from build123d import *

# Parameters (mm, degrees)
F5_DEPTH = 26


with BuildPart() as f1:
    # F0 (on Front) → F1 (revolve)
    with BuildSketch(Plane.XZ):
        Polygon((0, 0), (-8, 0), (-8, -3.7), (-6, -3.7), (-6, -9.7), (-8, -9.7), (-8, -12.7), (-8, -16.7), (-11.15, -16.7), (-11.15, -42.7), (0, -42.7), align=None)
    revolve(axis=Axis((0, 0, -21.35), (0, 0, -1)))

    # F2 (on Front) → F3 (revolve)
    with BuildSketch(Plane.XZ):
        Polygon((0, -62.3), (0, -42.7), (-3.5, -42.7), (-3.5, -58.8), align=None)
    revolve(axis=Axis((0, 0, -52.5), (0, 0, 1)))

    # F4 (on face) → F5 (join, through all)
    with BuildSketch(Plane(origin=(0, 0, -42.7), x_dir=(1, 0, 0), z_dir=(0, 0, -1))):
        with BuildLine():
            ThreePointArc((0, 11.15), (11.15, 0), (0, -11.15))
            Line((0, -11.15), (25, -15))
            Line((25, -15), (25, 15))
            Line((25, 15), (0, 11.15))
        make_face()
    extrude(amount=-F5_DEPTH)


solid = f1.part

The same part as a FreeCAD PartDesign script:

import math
import FreeCAD as App
import Part
import Sketcher

V = App.Vector
Q = App.Units.Quantity

doc = App.newDocument("Part")
params = doc.addObject("Spreadsheet::Sheet", "Params")
for row, (alias, value) in enumerate([
    ("sketch1_width", "8 mm"),
    ("sketch1_width2", "2 mm"),
    ("sketch1_height", "6 mm"),
    ("sketch1_height2", "7 mm"),
    ("sketch1_height3", "26 mm"),
    ("revolution_angle", "360 deg"),
    ("sketch2_width", "3.5 mm"),
    ("sketch2_height", "19.6 mm"),
    ("revolution2_angle", "360 deg"),
    ("sketch3_height", "30 mm"),
    ("sketch3_radius", "11.15 mm"),
    ("pad1_length", "26 mm"),
], start=1):
    params.set(f"A{row}", alias)
    params.set(f"B{row}", "=" + value)
    params.setAlias(f"B{row}", alias)

body = doc.addObject("PartDesign::Body", "Body")

sketch1 = body.newObject("Sketcher::SketchObject", "Sketch")
sketch1.AttachmentSupport = (doc.getObject("XZ_Plane"), [""])
sketch1.MapMode = "FlatFace"
sketch1.addGeometry(Part.LineSegment(V(0, 0, 0), V(-8, 0, 0)), False)
sketch1.addGeometry(Part.LineSegment(V(-8, 0, 0), V(-8, -3.7, 0)), False)
sketch1.addGeometry(Part.LineSegment(V(-8, -3.7, 0), V(-6, -3.7, 0)), False)
sketch1.addGeometry(Part.LineSegment(V(-6, -3.7, 0), V(-6, -9.7, 0)), False)
sketch1.addGeometry(Part.LineSegment(V(-6, -9.7, 0), V(-8, -9.7, 0)), False)
sketch1.addGeometry(Part.LineSegment(V(-8, -9.7, 0), V(-8, -16.7, 0)), False)
sketch1.addGeometry(Part.LineSegment(V(-8, -16.7, 0), V(-11.2, -16.7, 0)), False)
sketch1.addGeometry(Part.LineSegment(V(-11.2, -16.7, 0), V(-11.2, -42.7, 0)), False)
sketch1.addGeometry(Part.LineSegment(V(-11.2, -42.7, 0), V(0, -42.7, 0)), False)
sketch1.addGeometry(Part.LineSegment(V(0, -42.7, 0), V(0, 0, 0)), False)
sketch1.addConstraint(Sketcher.Constraint("Coincident", 0, 2, 1, 1))
sketch1.addConstraint(Sketcher.Constraint("Coincident", 1, 2, 2, 1))
sketch1.addConstraint(Sketcher.Constraint("Coincident", 2, 2, 3, 1))
sketch1.addConstraint(Sketcher.Constraint("Coincident", 3, 2, 4, 1))
sketch1.addConstraint(Sketcher.Constraint("Coincident", 4, 2, 5, 1))
sketch1.addConstraint(Sketcher.Constraint("Coincident", 5, 2, 6, 1))
sketch1.addConstraint(Sketcher.Constraint("Coincident", 6, 2, 7, 1))
sketch1.addConstraint(Sketcher.Constraint("Coincident", 7, 2, 8, 1))
sketch1.addConstraint(Sketcher.Constraint("Coincident", 8, 2, 9, 1))
sketch1.addConstraint(Sketcher.Constraint("Coincident", 9, 2, 0, 1))
sketch1.addConstraint(Sketcher.Constraint("Horizontal", 0))
sketch1.addConstraint(Sketcher.Constraint("Vertical", 1))
sketch1.addConstraint(Sketcher.Constraint("Horizontal", 2))
sketch1.addConstraint(Sketcher.Constraint("Vertical", 3))
sketch1.addConstraint(Sketcher.Constraint("Horizontal", 4))
sketch1.addConstraint(Sketcher.Constraint("Vertical", 5))
sketch1.addConstraint(Sketcher.Constraint("Horizontal", 6))
sketch1.addConstraint(Sketcher.Constraint("Vertical", 7))
sketch1.addConstraint(Sketcher.Constraint("Horizontal", 8))
sketch1.addConstraint(Sketcher.Constraint("Vertical", 9))
sketch1.addConstraint(Sketcher.Constraint("Coincident", 9, 2, -1, 1))
sketch1.addConstraint(Sketcher.Constraint("Vertical", 1, 2, 4, 2))
sketch1.addConstraint(Sketcher.Constraint("DistanceX", 0, 2, 0, 1, 8.0))
sketch1.addConstraint(Sketcher.Constraint("DistanceX", 2, 1, 2, 2, 2.0))
sketch1.addConstraint(Sketcher.Constraint("DistanceY", 3, 2, 3, 1, 6.0))
sketch1.addConstraint(Sketcher.Constraint("DistanceY", 5, 2, 5, 1, 7.0))
sketch1.addConstraint(Sketcher.Constraint("DistanceY", 7, 2, 7, 1, 26.0))
sketch1.addConstraint(Sketcher.Constraint("DistanceY", 1, 2, 1, 1, 3.7))
sketch1.addConstraint(Sketcher.Constraint("DistanceX", 6, 2, 6, 1, 3.15))
sketch1.setExpression("Constraints[22]", "Params.sketch1_width")
sketch1.setExpression("Constraints[23]", "Params.sketch1_width2")
sketch1.setExpression("Constraints[24]", "Params.sketch1_height")
sketch1.setExpression("Constraints[25]", "Params.sketch1_height2")
sketch1.setExpression("Constraints[26]", "Params.sketch1_height3")
revolution = body.newObject("PartDesign::Revolution", "Revolution")
revolution.Profile = sketch1
revolution.ReferenceAxis = (sketch1, ["V_Axis"])
revolution.setExpression("Angle", "Params.revolution_angle")

sketch2 = body.newObject("Sketcher::SketchObject", "Sketch001")
sketch2.AttachmentSupport = (doc.getObject("XZ_Plane"), [""])
sketch2.MapMode = "FlatFace"
sketch2.addGeometry(Part.LineSegment(V(0, -62.3, 0), V(0, -42.7, 0)), False)
sketch2.addGeometry(Part.LineSegment(V(0, -42.7, 0), V(-3.5, -42.7, 0)), False)
sketch2.addGeometry(Part.LineSegment(V(-3.5, -42.7, 0), V(-3.5, -58.8, 0)), False)
sketch2.addGeometry(Part.LineSegment(V(-3.5, -58.8, 0), V(0, -62.3, 0)), False)
sketch2.addConstraint(Sketcher.Constraint("Coincident", 0, 2, 1, 1))
sketch2.addConstraint(Sketcher.Constraint("Coincident", 1, 2, 2, 1))
sketch2.addConstraint(Sketcher.Constraint("Coincident", 2, 2, 3, 1))
sketch2.addConstraint(Sketcher.Constraint("Coincident", 3, 2, 0, 1))
sketch2.addConstraint(Sketcher.Constraint("Vertical", 0))
sketch2.addConstraint(Sketcher.Constraint("Horizontal", 1))
sketch2.addConstraint(Sketcher.Constraint("Vertical", 2))
sketch2.addConstraint(Sketcher.Constraint("PointOnObject", 0, 2, -2))
sketch2.addConstraint(Sketcher.Constraint("Angle", 3, Q("-45 deg")))
sketch2.addConstraint(Sketcher.Constraint("DistanceX", 1, 2, 1, 1, 3.5))
sketch2.addConstraint(Sketcher.Constraint("DistanceY", 0, 1, 0, 2, 19.6))
sketch2.addConstraint(Sketcher.Constraint("DistanceY", 0, 2, -1, 1, 42.7))
sketch2.setExpression("Constraints[9]", "Params.sketch2_width")
sketch2.setExpression("Constraints[10]", "Params.sketch2_height")
revolution2 = body.newObject("PartDesign::Revolution", "Revolution001")
revolution2.Profile = sketch2
revolution2.ReferenceAxis = (sketch2, ["V_Axis"])
revolution2.setExpression("Angle", "Params.revolution2_angle")

sketch3 = body.newObject("Sketcher::SketchObject", "Sketch002")
sketch3.AttachmentSupport = (doc.getObject("XY_Plane"), [""])
sketch3.MapMode = "FlatFace"
sketch3.AttachmentOffset = App.Placement(V(0, 0, -42.7), App.Rotation())
sketch3.addGeometry(Part.ArcOfCircle(Part.Circle(V(0, 0, 0), V(0, 0, 1), 11), math.radians(-90), math.radians(90)), False)
sketch3.addGeometry(Part.LineSegment(V(0, 11, 0), V(25, 15, 0)), False)
sketch3.addGeometry(Part.LineSegment(V(25, 15, 0), V(25, -15, 0)), False)
sketch3.addGeometry(Part.LineSegment(V(25, -15, 0), V(0, -11, 0)), False)
sketch3.addConstraint(Sketcher.Constraint("Coincident", 0, 2, 1, 1))
sketch3.addConstraint(Sketcher.Constraint("Coincident", 1, 2, 2, 1))
sketch3.addConstraint(Sketcher.Constraint("Coincident", 2, 2, 3, 1))
sketch3.addConstraint(Sketcher.Constraint("Coincident", 3, 2, 0, 1))
sketch3.addConstraint(Sketcher.Constraint("Vertical", 2))
sketch3.addConstraint(Sketcher.Constraint("Coincident", 0, 3, -1, 1))
sketch3.addConstraint(Sketcher.Constraint("PointOnObject", 0, 2, -2))
sketch3.addConstraint(Sketcher.Constraint("PointOnObject", 3, 2, -2))
sketch3.addConstraint(Sketcher.Constraint("Equal", 1, 3))
sketch3.addConstraint(Sketcher.Constraint("DistanceY", 2, 2, 2, 1, 30.0))
sketch3.addConstraint(Sketcher.Constraint("Radius", 0, 11.15))
sketch3.addConstraint(Sketcher.Constraint("DistanceX", -1, 1, 1, 2, 25.0))
sketch3.setExpression("Constraints[9]", "Params.sketch3_height")
sketch3.setExpression("Constraints[10]", "Params.sketch3_radius")
pad1 = body.newObject("PartDesign::Pad", "Pad")
pad1.Profile = sketch3
pad1.setExpression("Length", "Params.pad1_length")

doc.recompute()
